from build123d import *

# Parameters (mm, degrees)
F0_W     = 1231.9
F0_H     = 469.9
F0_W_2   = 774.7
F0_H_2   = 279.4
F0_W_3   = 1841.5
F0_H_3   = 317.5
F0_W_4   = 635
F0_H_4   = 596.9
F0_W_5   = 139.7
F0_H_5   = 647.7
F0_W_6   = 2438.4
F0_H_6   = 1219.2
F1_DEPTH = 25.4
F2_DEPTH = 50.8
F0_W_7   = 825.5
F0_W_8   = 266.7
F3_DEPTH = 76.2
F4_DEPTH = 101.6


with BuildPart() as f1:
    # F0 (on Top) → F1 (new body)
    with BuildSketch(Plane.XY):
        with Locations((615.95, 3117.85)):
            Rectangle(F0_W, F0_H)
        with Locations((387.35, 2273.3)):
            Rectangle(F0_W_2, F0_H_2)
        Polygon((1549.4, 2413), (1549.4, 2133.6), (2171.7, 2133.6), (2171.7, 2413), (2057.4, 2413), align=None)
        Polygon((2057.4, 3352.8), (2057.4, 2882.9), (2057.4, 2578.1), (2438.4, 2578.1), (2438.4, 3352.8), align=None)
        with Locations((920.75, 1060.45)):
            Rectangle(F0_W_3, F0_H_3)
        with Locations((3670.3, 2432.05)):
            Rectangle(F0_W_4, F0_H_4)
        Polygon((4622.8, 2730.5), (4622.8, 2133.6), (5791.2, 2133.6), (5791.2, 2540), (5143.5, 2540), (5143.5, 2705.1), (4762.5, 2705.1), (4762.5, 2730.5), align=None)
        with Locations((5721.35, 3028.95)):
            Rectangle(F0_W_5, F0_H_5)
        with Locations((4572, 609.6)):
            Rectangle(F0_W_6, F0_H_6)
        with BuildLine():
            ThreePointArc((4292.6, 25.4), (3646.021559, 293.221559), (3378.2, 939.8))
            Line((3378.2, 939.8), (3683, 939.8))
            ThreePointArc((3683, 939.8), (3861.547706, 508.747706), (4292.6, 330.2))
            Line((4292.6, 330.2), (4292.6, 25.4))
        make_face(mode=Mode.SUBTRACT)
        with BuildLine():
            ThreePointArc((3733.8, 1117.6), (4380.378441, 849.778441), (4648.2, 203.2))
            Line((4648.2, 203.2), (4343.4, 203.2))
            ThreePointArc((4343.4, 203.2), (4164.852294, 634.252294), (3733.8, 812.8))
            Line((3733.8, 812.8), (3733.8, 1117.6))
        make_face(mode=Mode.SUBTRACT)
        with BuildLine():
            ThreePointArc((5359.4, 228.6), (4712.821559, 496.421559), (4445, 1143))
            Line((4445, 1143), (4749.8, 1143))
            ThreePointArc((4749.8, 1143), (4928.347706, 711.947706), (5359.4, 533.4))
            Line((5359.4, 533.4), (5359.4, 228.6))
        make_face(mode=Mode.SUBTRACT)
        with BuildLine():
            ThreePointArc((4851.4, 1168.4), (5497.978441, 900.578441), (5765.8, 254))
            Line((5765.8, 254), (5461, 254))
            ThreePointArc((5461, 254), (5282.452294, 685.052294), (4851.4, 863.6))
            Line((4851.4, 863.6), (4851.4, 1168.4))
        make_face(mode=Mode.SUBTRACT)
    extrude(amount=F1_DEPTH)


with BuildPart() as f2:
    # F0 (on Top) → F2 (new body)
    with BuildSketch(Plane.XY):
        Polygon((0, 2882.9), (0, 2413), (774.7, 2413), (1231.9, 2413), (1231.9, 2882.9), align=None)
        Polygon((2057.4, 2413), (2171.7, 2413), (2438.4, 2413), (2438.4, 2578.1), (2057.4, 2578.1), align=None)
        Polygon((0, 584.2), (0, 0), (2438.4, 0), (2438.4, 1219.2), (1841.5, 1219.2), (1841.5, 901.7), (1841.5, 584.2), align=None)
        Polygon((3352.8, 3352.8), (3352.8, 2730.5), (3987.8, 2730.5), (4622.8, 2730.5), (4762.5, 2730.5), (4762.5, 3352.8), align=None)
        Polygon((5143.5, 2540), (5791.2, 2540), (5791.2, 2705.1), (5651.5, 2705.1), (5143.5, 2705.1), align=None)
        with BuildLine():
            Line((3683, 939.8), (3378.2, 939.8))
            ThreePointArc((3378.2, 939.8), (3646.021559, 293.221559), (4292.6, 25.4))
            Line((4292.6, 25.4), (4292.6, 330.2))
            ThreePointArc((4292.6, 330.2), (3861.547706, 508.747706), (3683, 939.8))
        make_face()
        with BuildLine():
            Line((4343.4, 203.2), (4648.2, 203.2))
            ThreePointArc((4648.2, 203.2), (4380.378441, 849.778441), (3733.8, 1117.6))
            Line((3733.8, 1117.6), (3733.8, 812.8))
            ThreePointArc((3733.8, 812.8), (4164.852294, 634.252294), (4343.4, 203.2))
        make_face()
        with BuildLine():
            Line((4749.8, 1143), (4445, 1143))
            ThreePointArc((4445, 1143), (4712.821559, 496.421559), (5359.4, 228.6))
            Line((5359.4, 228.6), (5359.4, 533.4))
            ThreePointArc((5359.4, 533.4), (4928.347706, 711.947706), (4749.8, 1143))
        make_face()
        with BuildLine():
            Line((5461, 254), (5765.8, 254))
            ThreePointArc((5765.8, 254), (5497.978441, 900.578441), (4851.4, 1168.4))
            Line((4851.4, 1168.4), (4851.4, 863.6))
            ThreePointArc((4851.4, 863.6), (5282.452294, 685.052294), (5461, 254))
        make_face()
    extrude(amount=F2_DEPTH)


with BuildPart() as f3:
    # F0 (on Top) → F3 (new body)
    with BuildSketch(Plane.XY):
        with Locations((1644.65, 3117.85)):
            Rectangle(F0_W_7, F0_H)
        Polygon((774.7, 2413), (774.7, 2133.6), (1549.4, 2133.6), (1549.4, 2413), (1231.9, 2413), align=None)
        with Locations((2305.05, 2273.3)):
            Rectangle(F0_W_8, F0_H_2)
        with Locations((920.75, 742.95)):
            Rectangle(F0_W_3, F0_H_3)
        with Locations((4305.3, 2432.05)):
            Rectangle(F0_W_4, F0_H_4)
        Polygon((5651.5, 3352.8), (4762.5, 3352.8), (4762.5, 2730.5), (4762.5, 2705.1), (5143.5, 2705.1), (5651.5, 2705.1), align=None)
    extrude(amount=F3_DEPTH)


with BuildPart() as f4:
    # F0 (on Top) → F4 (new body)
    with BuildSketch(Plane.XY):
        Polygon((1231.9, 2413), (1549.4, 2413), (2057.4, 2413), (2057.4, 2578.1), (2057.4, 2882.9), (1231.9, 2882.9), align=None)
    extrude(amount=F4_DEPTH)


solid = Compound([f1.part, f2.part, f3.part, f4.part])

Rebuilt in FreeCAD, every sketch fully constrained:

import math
import FreeCAD as App
import Part
import Sketcher
Q = App.Units.Quantity

doc = App.newDocument("Part")
params = doc.addObject("Spreadsheet::Sheet", "Params")
for row, (alias, value) in enumerate([
    ("sketch1_radius", "36 in"),
    ("sketch1_radius2", "24 in"),
    ("sketch1_width", "15 in"),
    ("sketch1_width2", "25 in"),
    ("sketch1_width3", "46 in"),
    ("pad1_length", "1 in"),
    ("sketch2_radius", "36 in"),
    ("sketch2_radius2", "24 in"),
    ("sketch2_width", "15 in"),
    ("sketch2_width2", "96 in"),
    ("sketch2_height", "23 in"),
    ("pad2_length", "2 in"),
    ("sketch3_width", "25 in"),
    ("sketch3_width2", "35 in"),
    ("sketch3_height", "11 in"),
    ("sketch3_width3", "32.5 in"),
    ("sketch3_width4", "30.5 in"),
    ("pad3_length", "3 in"),
    ("sketch4_width", "32.5 in"),
    ("sketch4_height", "18.5 in"),
    ("pad4_length", "4 in"),
], start=1):
    params.set(f"A{row}", alias)
    params.set(f"B{row}", "=" + value)
    params.setAlias(f"B{row}", alias)

body = doc.addObject("PartDesign::Body", "Body")
body.AllowCompound = True

# Sketch on XY plane
sketch1 = doc.addObject("Sketcher::SketchObject", "Sketch")
body.addObject(sketch1)
sketch1.AttachmentSupport = (doc.XY_Plane, [""])
sketch1.MapMode = "FlatFace"
sketch1.addGeometry(Part.LineSegment(App.Vector(0, 3353, 0), App.Vector(0, 2883, 0)), False)
sketch1.addGeometry(Part.LineSegment(App.Vector(0, 2883, 0), App.Vector(1232, 2883, 0)), False)
sketch1.addGeometry(Part.LineSegment(App.Vector(1232, 2883, 0), App.Vector(1232, 3353, 0)), False)
sketch1.addGeometry(Part.LineSegment(App.Vector(1232, 3353, 0), App.Vector(0, 3353, 0)), False)
sketch1.addGeometry(Part.LineSegment(App.Vector(0, 2413, 0), App.Vector(0, 2134, 0)), False)
sketch1.addGeometry(Part.LineSegment(App.Vector(0, 2134, 0), App.Vector(775, 2134, 0)), False)
sketch1.addGeometry(Part.LineSegment(App.Vector(775, 2134, 0), App.Vector(775, 2413, 0)), False)
sketch1.addGeometry(Part.LineSegment(App.Vector(775, 2413, 0), App.Vector(0, 2413, 0)), False)
sketch1.addGeometry(Part.LineSegment(App.Vector(1549, 2413, 0), App.Vector(1549, 2134, 0)), False)
sketch1.addGeometry(Part.LineSegment(App.Vector(1549, 2134, 0), App.Vector(2172, 2134, 0)), False)
sketch1.addGeometry(Part.LineSegment(App.Vector(2172, 2134, 0), App.Vector(2172, 2413, 0)), False)
sketch1.addGeometry(Part.LineSegment(App.Vector(2172, 2413, 0), App.Vector(1549, 2413, 0)), False)
sketch1.addGeometry(Part.LineSegment(App.Vector(2057, 3353, 0), App.Vector(2057, 2578, 0)), False)
sketch1.addGeometry(Part.LineSegment(App.Vector(2057, 2578, 0), App.Vector(2438, 2578, 0)), False)
sketch1.addGeometry(Part.LineSegment(App.Vector(2438, 2578, 0), App.Vector(2438, 3353, 0)), False)
sketch1.addGeometry(Part.LineSegment(App.Vector(2438, 3353, 0), App.Vector(2057, 3353, 0)), False)
sketch1.addGeometry(Part.LineSegment(App.Vector(0, 1219, 0), App.Vector(0, 902, 0)), False)
sketch1.addGeometry(Part.LineSegment(App.Vector(0, 902, 0), App.Vector(1842, 902, 0)), False)
sketch1.addGeometry(Part.LineSegment(App.Vector(1842, 902, 0), App.Vector(1842, 1219, 0)), False)
sketch1.addGeometry(Part.LineSegment(App.Vector(1842, 1219, 0), App.Vector(0, 1219, 0)), False)
sketch1.addGeometry(Part.LineSegment(App.Vector(3353, 2730, 0), App.Vector(3353, 2134, 0)), False)
sketch1.addGeometry(Part.LineSegment(App.Vector(3353, 2134, 0), App.Vector(3988, 2134, 0)), False)
sketch1.addGeometry(Part.LineSegment(App.Vector(3988, 2134, 0), App.Vector(3988, 2730, 0)), False)
sketch1.addGeometry(Part.LineSegment(App.Vector(3988, 2730, 0), App.Vector(3353, 2730, 0)), False)
sketch1.addGeometry(Part.LineSegment(App.Vector(4623, 2730, 0), App.Vector(4623, 2134, 0)), False)
sketch1.addGeometry(Part.LineSegment(App.Vector(4623, 2134, 0), App.Vector(5791, 2134, 0)), False)
sketch1.addGeometry(Part.LineSegment(App.Vector(5791, 2134, 0), App.Vector(5791, 2540, 0)), False)
sketch1.addGeometry(Part.LineSegment(App.Vector(5791, 2540, 0), App.Vector(5144, 2540, 0)), False)
sketch1.addGeometry(Part.LineSegment(App.Vector(5144, 2540, 0), App.Vector(5144, 2705, 0)), False)
sketch1.addGeometry(Part.LineSegment(App.Vector(5144, 2705, 0), App.Vector(4762, 2705, 0)), False)
sketch1.addGeometry(Part.LineSegment(App.Vector(4762, 2705, 0), App.Vector(4762, 2730, 0)), False)
sketch1.addGeometry(Part.LineSegment(App.Vector(4762, 2730, 0), App.Vector(4623, 2730, 0)), False)
sketch1.addGeometry(Part.LineSegment(App.Vector(5652, 3353, 0), App.Vector(5652, 2705, 0)), False)
sketch1.addGeometry(Part.LineSegment(App.Vector(5652, 2705, 0), App.Vector(5791, 2705, 0)), False)
sketch1.addGeometry(Part.LineSegment(App.Vector(5791, 2705, 0), App.Vector(5791, 3353, 0)), False)
sketch1.addGeometry(Part.LineSegment(App.Vector(5791, 3353, 0), App.Vector(5652, 3353, 0)), False)
sketch1.addGeometry(Part.LineSegment(App.Vector(3353, 1219, 0), App.Vector(3353, 0, 0)), False)
sketch1.addGeometry(Part.LineSegment(App.Vector(3353, 0, 0), App.Vector(5791, 0, 0)), False)
sketch1.addGeometry(Part.LineSegment(App.Vector(5791, 0, 0), App.Vector(5791, 1219, 0)), False)
sketch1.addGeometry(Part.LineSegment(App.Vector(5791, 1219, 0), App.Vector(3353, 1219, 0)), False)
sketch1.addGeometry(Part.LineSegment(App.Vector(4293, 330, 0), App.Vector(4293, 25, 0)), False)
sketch1.addGeometry(Part.ArcOfCircle(Part.Circle(App.Vector(4293, 940, 0), App.Vector(0, 0, 1), 914), math.radians(180), math.radians(270)), False)
sketch1.addGeometry(Part.LineSegment(App.Vector(3378, 940, 0), App.Vector(3683, 940, 0)), False)
sketch1.addGeometry(Part.ArcOfCircle(Part.Circle(App.Vector(4293, 940, 0), App.Vector(0, 0, 1), 610), math.radians(180), math.radians(270)), False)
sketch1.addGeometry(Part.LineSegment(App.Vector(3734, 813, 0), App.Vector(3734, 1118, 0)), False)
sketch1.addGeometry(Part.ArcOfCircle(Part.Circle(App.Vector(3734, 203, 0), App.Vector(0, 0, 1), 914), math.radians(0), math.radians(90)), False)
sketch1.addGeometry(Part.LineSegment(App.Vector(4648, 203, 0), App.Vector(4343, 203, 0)), False)
sketch1.addGeometry(Part.ArcOfCircle(Part.Circle(App.Vector(3734, 203, 0), App.Vector(0, 0, 1), 610), math.radians(0), math.radians(90)), False)
sketch1.addGeometry(Part.LineSegment(App.Vector(5359, 533, 0), App.Vector(5359, 229, 0)), False)
sketch1.addGeometry(Part.ArcOfCircle(Part.Circle(App.Vector(5359, 1143, 0), App.Vector(0, 0, 1), 914), math.radians(180), math.radians(270)), False)
sketch1.addGeometry(Part.LineSegment(App.Vector(4445, 1143, 0), App.Vector(4750, 1143, 0)), False)
sketch1.addGeometry(Part.ArcOfCircle(Part.Circle(App.Vector(5359, 1143, 0), App.Vector(0, 0, 1), 610), math.radians(180), math.radians(270)), False)
sketch1.addGeometry(Part.LineSegment(App.Vector(4851, 864, 0), App.Vector(4851, 1168, 0)), False)
sketch1.addGeometry(Part.ArcOfCircle(Part.Circle(App.Vector(4851, 254, 0), App.Vector(0, 0, 1), 914), math.radians(0), math.radians(90)), False)
sketch1.addGeometry(Part.LineSegment(App.Vector(5766, 254, 0), App.Vector(5461, 254, 0)), False)
sketch1.addGeometry(Part.ArcOfCircle(Part.Circle(App.Vector(4851, 254, 0), App.Vector(0, 0, 1), 610), math.radians(0), math.radians(90)), False)
sketch1.addConstraint(Sketcher.Constraint("Coincident", 0, 2, 1, 1))
sketch1.addConstraint(Sketcher.Constraint("Coincident", 1, 2, 2, 1))
sketch1.addConstraint(Sketcher.Constraint("Coincident", 2, 2, 3, 1))
sketch1.addConstraint(Sketcher.Constraint("Coincident", 3, 2, 0, 1))
sketch1.addConstraint(Sketcher.Constraint("Coincident", 4, 2, 5, 1))
sketch1.addConstraint(Sketcher.Constraint("Coincident", 5, 2, 6, 1))
sketch1.addConstraint(Sketcher.Constraint("Coincident", 6, 2, 7, 1))
sketch1.addConstraint(Sketcher.Constraint("Coincident", 7, 2, 4, 1))
sketch1.addConstraint(Sketcher.Constraint("Coincident", 8, 2, 9, 1))
sketch1.addConstraint(Sketcher.Constraint("Coincident", 9, 2, 10, 1))
sketch1.addConstraint(Sketcher.Constraint("Coincident", 10, 2, 11, 1))
sketch1.addConstraint(Sketcher.Constraint("Coincident", 11, 2, 8, 1))
sketch1.addConstraint(Sketcher.Constraint("Coincident", 12, 2, 13, 1))
sketch1.addConstraint(Sketcher.Constraint("Coincident", 13, 2, 14, 1))
sketch1.addConstraint(Sketcher.Constraint("Coincident", 14, 2, 15, 1))
sketch1.addConstraint(Sketcher.Constraint("Coincident", 15, 2, 12, 1))
sketch1.addConstraint(Sketcher.Constraint("Coincident", 16, 2, 17, 1))
sketch1.addConstraint(Sketcher.Constraint("Coincident", 17, 2, 18, 1))
sketch1.addConstraint(Sketcher.Constraint("Coincident", 18, 2, 19, 1))
sketch1.addConstraint(Sketcher.Constraint("Coincident", 19, 2, 16, 1))
sketch1.addConstraint(Sketcher.Constraint("Coincident", 20, 2, 21, 1))
sketch1.addConstraint(Sketcher.Constraint("Coincident", 21, 2, 22, 1))
sketch1.addConstraint(Sketcher.Constraint("Coincident", 22, 2, 23, 1))
sketch1.addConstraint(Sketcher.Constraint("Coincident", 23, 2, 20, 1))
sketch1.addConstraint(Sketcher.Constraint("Coincident", 24, 2, 25, 1))
sketch1.addConstraint(Sketcher.Constraint("Coincident", 25, 2, 26, 1))
sketch1.addConstraint(Sketcher.Constraint("Coincident", 26, 2, 27, 1))
sketch1.addConstraint(Sketcher.Constraint("Coincident", 27, 2, 28, 1))
sketch1.addConstraint(Sketcher.Constraint("Coincident", 28, 2, 29, 1))
sketch1.addConstraint(Sketcher.Constraint("Coincident", 29, 2, 30, 1))
sketch1.addConstraint(Sketcher.Constraint("Coincident", 30, 2, 31, 1))
sketch1.addConstraint(Sketcher.Constraint("Coincident", 31, 2, 24, 1))
sketch1.addConstraint(Sketcher.Constraint("Coincident", 32, 2, 33, 1))
sketch1.addConstraint(Sketcher.Constraint("Coincident", 33, 2, 34, 1))
sketch1.addConstraint(Sketcher.Constraint("Coincident", 34, 2, 35, 1))
sketch1.addConstraint(Sketcher.Constraint("Coincident", 35, 2, 32, 1))
sketch1.addConstraint(Sketcher.Constraint("Coincident", 36, 2, 37, 1))
sketch1.addConstraint(Sketcher.Constraint("Coincident", 37, 2, 38, 1))
sketch1.addConstraint(Sketcher.Constraint("Coincident", 38, 2, 39, 1))
sketch1.addConstraint(Sketcher.Constraint("Coincident", 39, 2, 36, 1))
sketch1.addConstraint(Sketcher.Constraint("Coincident", 40, 2, 41, 2))
sketch1.addConstraint(Sketcher.Constraint("Coincident", 41, 1, 42, 1))
sketch1.addConstraint(Sketcher.Constraint("Coincident", 42, 2, 43, 1))
sketch1.addConstraint(Sketcher.Constraint("Coincident", 43, 2, 40, 1))
sketch1.addConstraint(Sketcher.Constraint("Coincident", 44, 2, 45, 2))
sketch1.addConstraint(Sketcher.Constraint("Coincident", 45, 1, 46, 1))
sketch1.addConstraint(Sketcher.Constraint("Coincident", 46, 2, 47, 1))
sketch1.addConstraint(Sketcher.Constraint("Coincident", 47, 2, 44, 1))
sketch1.addConstraint(Sketcher.Constraint("Coincident", 48, 2, 49, 2))
sketch1.addConstraint(Sketcher.Constraint("Coincident", 49, 1, 50, 1))
sketch1.addConstraint(Sketcher.Constraint("Coincident", 50, 2, 51, 1))
sketch1.addConstraint(Sketcher.Constraint("Coincident", 51, 2, 48, 1))
sketch1.addConstraint(Sketcher.Constraint("Coincident", 52, 2, 53, 2))
sketch1.addConstraint(Sketcher.Constraint("Coincident", 53, 1, 54, 1))
sketch1.addConstraint(Sketcher.Constraint("Coincident", 54, 2, 55, 1))
sketch1.addConstraint(Sketcher.Constraint("Coincident", 55, 2, 52, 1))
sketch1.addConstraint(Sketcher.Constraint("Vertical", 0))
sketch1.addConstraint(Sketcher.Constraint("Horizontal", 1))
sketch1.addConstraint(Sketcher.Constraint("Vertical", 2))
sketch1.addConstraint(Sketcher.Constraint("Horizontal", 3))
sketch1.addConstraint(Sketcher.Constraint("Vertical", 4))
sketch1.addConstraint(Sketcher.Constraint("Horizontal", 5))
sketch1.addConstraint(Sketcher.Constraint("Vertical", 6))
sketch1.addConstraint(Sketcher.Constraint("Horizontal", 7))
sketch1.addConstraint(Sketcher.Constraint("Vertical", 8))
sketch1.addConstraint(Sketcher.Constraint("Horizontal", 9))
sketch1.addConstraint(Sketcher.Constraint("Vertical", 10))
sketch1.addConstraint(Sketcher.Constraint("Horizontal", 11))
sketch1.addConstraint(Sketcher.Constraint("Vertical", 12))
sketch1.addConstraint(Sketcher.Constraint("Horizontal", 13))
sketch1.addConstraint(Sketcher.Constraint("Vertical", 14))
sketch1.addConstraint(Sketcher.Constraint("Horizontal", 15))
sketch1.addConstraint(Sketcher.Constraint("Vertical", 16))
sketch1.addConstraint(Sketcher.Constraint("Horizontal", 17))
sketch1.addConstraint(Sketcher.Constraint("Vertical", 18))
sketch1.addConstraint(Sketcher.Constraint("Horizontal", 19))
sketch1.addConstraint(Sketcher.Constraint("Vertical", 20))
sketch1.addConstraint(Sketcher.Constraint("Horizontal", 21))
sketch1.addConstraint(Sketcher.Constraint("Vertical", 22))
sketch1.addConstraint(Sketcher.Constraint("Horizontal", 23))
sketch1.addConstraint(Sketcher.Constraint("Vertical", 24))
sketch1.addConstraint(Sketcher.Constraint("Horizontal", 25))
sketch1.addConstraint(Sketcher.Constraint("Vertical", 26))
sketch1.addConstraint(Sketcher.Constraint("Horizontal", 27))
sketch1.addConstraint(Sketcher.Constraint("Vertical", 28))
sketch1.addConstraint(Sketcher.Constraint("Horizontal", 29))
sketch1.addConstraint(Sketcher.Constraint("Vertical", 30))
sketch1.addConstraint(Sketcher.Constraint("Horizontal", 31))
sketch1.addConstraint(Sketcher.Constraint("Vertical", 32))
sketch1.addConstraint(Sketcher.Constraint("Horizontal", 33))
sketch1.addConstraint(Sketcher.Constraint("Vertical", 34))
sketch1.addConstraint(Sketcher.Constraint("Horizontal", 35))
sketch1.addConstraint(Sketcher.Constraint("Vertical", 36))
sketch1.addConstraint(Sketcher.Constraint("Horizontal", 37))
sketch1.addConstraint(Sketcher.Constraint("Vertical", 38))
sketch1.addConstraint(Sketcher.Constraint("Horizontal", 39))
sketch1.addConstraint(Sketcher.Constraint("Vertical", 40))
sketch1.addConstraint(Sketcher.Constraint("Horizontal", 42))
sketch1.addConstraint(Sketcher.Constraint("Vertical", 44))
sketch1.addConstraint(Sketcher.Constraint("Horizontal", 46))
sketch1.addConstraint(Sketcher.Constraint("Vertical", 48))
sketch1.addConstraint(Sketcher.Constraint("Horizontal", 50))
sketch1.addConstraint(Sketcher.Constraint("Vertical", 52))
sketch1.addConstraint(Sketcher.Constraint("Horizontal", 54))
sketch1.addConstraint(Sketcher.Constraint("Coincident", 43, 3, 41, 3))
sketch1.addConstraint(Sketcher.Constraint("Coincident", 47, 3, 45, 3))
sketch1.addConstraint(Sketcher.Constraint("Coincident", 51, 3, 49, 3))
sketch1.addConstraint(Sketcher.Constraint("Coincident", 55, 3, 53, 3))
sketch1.addConstraint(Sketcher.Constraint("Equal", 41, 45))
sketch1.addConstraint(Sketcher.Constraint("Equal", 43, 47))
sketch1.addConstraint(Sketcher.Constraint("Equal", 45, 49))
sketch1.addConstraint(Sketcher.Constraint("Equal", 47, 51))
sketch1.addConstraint(Sketcher.Constraint("Equal", 49, 53))
sketch1.addConstraint(Sketcher.Constraint("Equal", 51, 55))
sketch1.addConstraint(Sketcher.Constraint("PointOnObject", 0, 2, -2))
sketch1.addConstraint(Sketcher.Constraint("PointOnObject", 4, 2, -2))
sketch1.addConstraint(Sketcher.Constraint("PointOnObject", 16, 2, -2))
sketch1.addConstraint(Sketcher.Constraint("PointOnObject", 36, 2, -1))
sketch1.addConstraint(Sketcher.Constraint("Horizontal", 5, 2, 8, 2))
sketch1.addConstraint(Sketcher.Constraint("Horizontal", 7, 2, 10, 2))
sketch1.addConstraint(Sketcher.Constraint("Horizontal", 3, 2, 14, 2))
sketch1.addConstraint(Sketcher.Constraint("Horizontal", 9, 2, 20, 2))
sketch1.addConstraint(Sketcher.Constraint("Horizontal", 21, 2, 24, 2))
sketch1.addConstraint(Sketcher.Constraint("Horizontal", 23, 2, 30, 2))
sketch1.addConstraint(Sketcher.Constraint("Horizontal", 29, 2, 32, 2))
sketch1.addConstraint(Sketcher.Constraint("Horizontal", 15, 2, 34, 2))
sketch1.addConstraint(Sketcher.Constraint("Horizontal", 19, 2, 38, 2))
sketch1.addConstraint(Sketcher.Constraint("Vertical", 26, 2, 33, 2))
sketch1.addConstraint(Sketcher.Constraint("Vertical", 23, 2, 36, 2))
sketch1.addConstraint(Sketcher.Constraint("Vertical", 34, 2, 37, 2))
sketch1.addConstraint(Sketcher.Constraint("Vertical", 43, 3, 40, 2))
sketch1.addConstraint(Sketcher.Constraint("Vertical", 47, 3, 44, 2))
sketch1.addConstraint(Sketcher.Constraint("Vertical", 51, 3, 48, 2))
sketch1.addConstraint(Sketcher.Constraint("Vertical", 55, 3, 52, 2))
sketch1.addConstraint(Sketcher.Constraint("Equal", 15, 29))
sketch1.addConstraint(Sketcher.Constraint("Equal", 31, 33))
sketch1.addConstraint(Sketcher.Constraint("Equal", 7, 12))
sketch1.addConstraint(Sketcher.Constraint("Equal", 27, 32))
sketch1.addConstraint(Sketcher.Constraint("Radius", 41, Q("36 in")))
sketch1.addConstraint(Sketcher.Constraint("Radius", 43, Q("24 in")))
sketch1.addConstraint(Sketcher.Constraint("DistanceX", 13, 1, 13, 2, Q("15 in")))
sketch1.addConstraint(Sketcher.Constraint("DistanceX", 21, 1, 21, 2, Q("25 in")))
sketch1.addConstraint(Sketcher.Constraint("DistanceX", 25, 1, 25, 2, Q("46 in")))
sketch1.addConstraint(Sketcher.Constraint("DistanceX", 37, 1, 37, 2, Q("96 in")))
sketch1.addConstraint(Sketcher.Constraint("DistanceY", 4, 2, 4, 1, Q("11 in")))
sketch1.addConstraint(Sketcher.Constraint("DistanceY", 26, 1, 26, 2, Q("16 in")))
sketch1.addConstraint(Sketcher.Constraint("DistanceY", 30, 1, 30, 2, Q("1 in")))
sketch1.addConstraint(Sketcher.Constraint("DistanceY", 36, 2, 36, 1, Q("48 in")))
sketch1.addConstraint(Sketcher.Constraint("DistanceX", 1, 1, 1, 2, Q("48.5 in")))
sketch1.addConstraint(Sketcher.Constraint("DistanceX", 5, 1, 5, 2, Q("30.5 in")))
sketch1.addConstraint(Sketcher.Constraint("DistanceX", 9, 1, 9, 2, Q("24.5 in")))
sketch1.addConstraint(Sketcher.Constraint("DistanceX", 17, 1, 17, 2, Q("72.5 in")))
sketch1.addConstraint(Sketcher.Constraint("DistanceX", 27, 2, 27, 1, Q("25.5 in")))
sketch1.addConstraint(Sketcher.Constraint("DistanceY", 0, 2, 0, 1, Q("18.5 in")))
sketch1.addConstraint(Sketcher.Constraint("DistanceY", 16, 2, 16, 1, Q("12.5 in")))
sketch1.addConstraint(Sketcher.Constraint("DistanceY", 20, 2, 20, 1, Q("23.5 in")))
sketch1.addConstraint(Sketcher.Constraint("DistanceX", -1, 1, 41, 3, Q("169 in")))
sketch1.addConstraint(Sketcher.Constraint("DistanceY", -1, 1, 41, 3, Q("37 in")))
sketch1.addConstraint(Sketcher.Constraint("DistanceX", -1, 1, 45, 3, Q("147 in")))
sketch1.addConstraint(Sketcher.Constraint("DistanceY", -1, 1, 45, 3, Q("8 in")))
sketch1.addConstraint(Sketcher.Constraint("DistanceX", -1, 1, 49, 3, Q("211 in")))
sketch1.addConstraint(Sketcher.Constraint("DistanceY", -1, 1, 49, 3, Q("45 in")))
sketch1.addConstraint(Sketcher.Constraint("DistanceX", -1, 1, 53, 3, Q("191 in")))
sketch1.addConstraint(Sketcher.Constraint("DistanceY", -1, 1, 53, 3, Q("10 in")))
sketch1.addConstraint(Sketcher.Constraint("DistanceY", -1, 1, 2, 2, Q("132 in")))
sketch1.addConstraint(Sketcher.Constraint("DistanceX", -1, 1, 8, 2, Q("61 in")))
sketch1.addConstraint(Sketcher.Constraint("DistanceX", -1, 1, 12, 2, Q("81 in")))
sketch1.addConstraint(Sketcher.Constraint("DistanceX", -1, 1, 20, 2, Q("132 in")))
sketch1.addConstraint(Sketcher.Constraint("DistanceY", -1, 1, 42, 2, Q("37 in")))
sketch1.addConstraint(Sketcher.Constraint("DistanceY", -1, 1, 46, 2, Q("8 in")))
sketch1.addConstraint(Sketcher.Constraint("DistanceY", -1, 1, 50, 2, Q("45 in")))
sketch1.addConstraint(Sketcher.Constraint("DistanceY", -1, 1, 54, 2, Q("10 in")))
sketch1.setExpression("Constraints[138]", "Params.sketch1_radius")
sketch1.setExpression("Constraints[139]", "Params.sketch1_radius2")
sketch1.setExpression("Constraints[140]", "Params.sketch1_width")
sketch1.setExpression("Constraints[141]", "Params.sketch1_width2")
sketch1.setExpression("Constraints[142]", "Params.sketch1_width3")
pad1 = doc.addObject("PartDesign::Pad", "Pad")
body.addObject(pad1)
pad1.Profile = sketch1
pad1.setExpression("Length", "Params.pad1_length")
body2 = doc.addObject("PartDesign::Body", "Body001")
body2.AllowCompound = True

# Sketch on XY plane
sketch2 = doc.addObject("Sketcher::SketchObject", "Sketch001")
body2.addObject(sketch2)
sketch2.AttachmentSupport = (doc.getObject("XY_Plane001"), [""])
sketch2.MapMode = "FlatFace"
sketch2.addGeometry(Part.LineSegment(App.Vector(0, 2883, 0), App.Vector(0, 2413, 0)), False)
sketch2.addGeometry(Part.LineSegment(App.Vector(0, 2413, 0), App.Vector(1232, 2413, 0)), False)
sketch2.addGeometry(Part.LineSegment(App.Vector(1232, 2413, 0), App.Vector(1232, 2883, 0)), False)
sketch2.addGeometry(Part.LineSegment(App.Vector(1232, 2883, 0), App.Vector(0, 2883, 0)), False)
sketch2.addGeometry(Part.LineSegment(App.Vector(2057, 2413, 0), App.Vector(2438, 2413, 0)), False)
sketch2.addGeometry(Part.LineSegment(App.Vector(2438, 2413, 0), App.Vector(2438, 2578, 0)), False)
sketch2.addGeometry(Part.LineSegment(App.Vector(2438, 2578, 0), App.Vector(2057, 2578, 0)), False)
sketch2.addGeometry(Part.LineSegment(App.Vector(2057, 2578, 0), App.Vector(2057, 2413, 0)), False)
sketch2.addGeometry(Part.LineSegment(App.Vector(0, 584, 0), App.Vector(0, 0, 0)), False)
sketch2.addGeometry(Part.LineSegment(App.Vector(0, 0, 0), App.Vector(2438, 0, 0)), False)
sketch2.addGeometry(Part.LineSegment(App.Vector(2438, 0, 0), App.Vector(2438, 1219, 0)), False)
sketch2.addGeometry(Part.LineSegment(App.Vector(2438, 1219, 0), App.Vector(1842, 1219, 0)), False)
sketch2.addGeometry(Part.LineSegment(App.Vector(1842, 1219, 0), App.Vector(1842, 584, 0)), False)
sketch2.addGeometry(Part.LineSegment(App.Vector(1842, 584, 0), App.Vector(0, 584, 0)), False)
sketch2.addGeometry(Part.LineSegment(App.Vector(3353, 3353, 0), App.Vector(3353, 2730, 0)), False)
sketch2.addGeometry(Part.LineSegment(App.Vector(3353, 2730, 0), App.Vector(4762, 2730, 0)), False)
sketch2.addGeometry(Part.LineSegment(App.Vector(4762, 2730, 0), App.Vector(4762, 3353, 0)), False)
sketch2.addGeometry(Part.LineSegment(App.Vector(4762, 3353, 0), App.Vector(3353, 3353, 0)), False)
sketch2.addGeometry(Part.LineSegment(App.Vector(5144, 2540, 0), App.Vector(5791, 2540, 0)), False)
sketch2.addGeometry(Part.LineSegment(App.Vector(5791, 2540, 0), App.Vector(5791, 2705, 0)), False)
sketch2.addGeometry(Part.LineSegment(App.Vector(5791, 2705, 0), App.Vector(5144, 2705, 0)), False)
sketch2.addGeometry(Part.LineSegment(App.Vector(5144, 2705, 0), App.Vector(5144, 2540, 0)), False)
sketch2.addGeometry(Part.LineSegment(App.Vector(3683, 940, 0), App.Vector(3378, 940, 0)), False)
sketch2.addGeometry(Part.ArcOfCircle(Part.Circle(App.Vector(4293, 940, 0), App.Vector(0, 0, 1), 914), math.radians(180), math.radians(270)), False)
sketch2.addGeometry(Part.LineSegment(App.Vector(4293, 25, 0), App.Vector(4293, 330, 0)), False)
sketch2.addGeometry(Part.ArcOfCircle(Part.Circle(App.Vector(4293, 940, 0), App.Vector(0, 0, 1), 610), math.radians(180), math.radians(270)), False)
sketch2.addGeometry(Part.LineSegment(App.Vector(4343, 203, 0), App.Vector(4648, 203, 0)), False)
sketch2.addGeometry(Part.ArcOfCircle(Part.Circle(App.Vector(3734, 203, 0), App.Vector(0, 0, 1), 914), math.radians(0), math.radians(90)), False)
sketch2.addGeometry(Part.LineSegment(App.Vector(3734, 1118, 0), App.Vector(3734, 813, 0)), False)
sketch2.addGeometry(Part.ArcOfCircle(Part.Circle(App.Vector(3734, 203, 0), App.Vector(0, 0, 1), 610), math.radians(0), math.radians(90)), False)
sketch2.addGeometry(Part.LineSegment(App.Vector(4750, 1143, 0), App.Vector(4445, 1143, 0)), False)
sketch2.addGeometry(Part.ArcOfCircle(Part.Circle(App.Vector(5359, 1143, 0), App.Vector(0, 0, 1), 914), math.radians(180), math.radians(270)), False)
sketch2.addGeometry(Part.LineSegment(App.Vector(5359, 229, 0), App.Vector(5359, 533, 0)), False)
sketch2.addGeometry(Part.ArcOfCircle(Part.Circle(App.Vector(5359, 1143, 0), App.Vector(0, 0, 1), 610), math.radians(180), math.radians(270)), False)
sketch2.addGeometry(Part.LineSegment(App.Vector(5461, 254, 0), App.Vector(5766, 254, 0)), False)
sketch2.addGeometry(Part.ArcOfCircle(Part.Circle(App.Vector(4851, 254, 0), App.Vector(0, 0, 1), 914), math.radians(0), math.radians(90)), False)
sketch2.addGeometry(Part.LineSegment(App.Vector(4851, 1168, 0), App.Vector(4851, 864, 0)), False)
sketch2.addGeometry(Part.ArcOfCircle(Part.Circle(App.Vector(4851, 254, 0), App.Vector(0, 0, 1), 610), math.radians(0), math.radians(90)), False)
sketch2.addConstraint(Sketcher.Constraint("Coincident", 0, 2, 1, 1))
sketch2.addConstraint(Sketcher.Constraint("Coincident", 1, 2, 2, 1))
sketch2.addConstraint(Sketcher.Constraint("Coincident", 2, 2, 3, 1))
sketch2.addConstraint(Sketcher.Constraint("Coincident", 3, 2, 0, 1))
sketch2.addConstraint(Sketcher.Constraint("Coincident", 4, 2, 5, 1))
sketch2.addConstraint(Sketcher.Constraint("Coincident", 5, 2, 6, 1))
sketch2.addConstraint(Sketcher.Constraint("Coincident", 6, 2, 7, 1))
sketch2.addConstraint(Sketcher.Constraint("Coincident", 7, 2, 4, 1))
sketch2.addConstraint(Sketcher.Constraint("Coincident", 8, 2, 9, 1))
sketch2.addConstraint(Sketcher.Constraint("Coincident", 9, 2, 10, 1))
sketch2.addConstraint(Sketcher.Constraint("Coincident", 10, 2, 11, 1))
sketch2.addConstraint(Sketcher.Constraint("Coincident", 11, 2, 12, 1))
sketch2.addConstraint(Sketcher.Constraint("Coincident", 12, 2, 13, 1))
sketch2.addConstraint(Sketcher.Constraint("Coincident", 13, 2, 8, 1))
sketch2.addConstraint(Sketcher.Constraint("Coincident", 14, 2, 15, 1))
sketch2.addConstraint(Sketcher.Constraint("Coincident", 15, 2, 16, 1))
sketch2.addConstraint(Sketcher.Constraint("Coincident", 16, 2, 17, 1))
sketch2.addConstraint(Sketcher.Constraint("Coincident", 17, 2, 14, 1))
sketch2.addConstraint(Sketcher.Constraint("Coincident", 18, 2, 19, 1))
sketch2.addConstraint(Sketcher.Constraint("Coincident", 19, 2, 20, 1))
sketch2.addConstraint(Sketcher.Constraint("Coincident", 20, 2, 21, 1))
sketch2.addConstraint(Sketcher.Constraint("Coincident", 21, 2, 18, 1))
sketch2.addConstraint(Sketcher.Constraint("Coincident", 22, 2, 23, 1))
sketch2.addConstraint(Sketcher.Constraint("Coincident", 23, 2, 24, 1))
sketch2.addConstraint(Sketcher.Constraint("Coincident", 24, 2, 25, 2))
sketch2.addConstraint(Sketcher.Constraint("Coincident", 25, 1, 22, 1))
sketch2.addConstraint(Sketcher.Constraint("Coincident", 26, 2, 27, 1))
sketch2.addConstraint(Sketcher.Constraint("Coincident", 27, 2, 28, 1))
sketch2.addConstraint(Sketcher.Constraint("Coincident", 28, 2, 29, 2))
sketch2.addConstraint(Sketcher.Constraint("Coincident", 29, 1, 26, 1))
sketch2.addConstraint(Sketcher.Constraint("Coincident", 30, 2, 31, 1))
sketch2.addConstraint(Sketcher.Constraint("Coincident", 31, 2, 32, 1))
sketch2.addConstraint(Sketcher.Constraint("Coincident", 32, 2, 33, 2))
sketch2.addConstraint(Sketcher.Constraint("Coincident", 33, 1, 30, 1))
sketch2.addConstraint(Sketcher.Constraint("Coincident", 34, 2, 35, 1))
sketch2.addConstraint(Sketcher.Constraint("Coincident", 35, 2, 36, 1))
sketch2.addConstraint(Sketcher.Constraint("Coincident", 36, 2, 37, 2))
sketch2.addConstraint(Sketcher.Constraint("Coincident", 37, 1, 34, 1))
sketch2.addConstraint(Sketcher.Constraint("Vertical", 0))
sketch2.addConstraint(Sketcher.Constraint("Horizontal", 1))
sketch2.addConstraint(Sketcher.Constraint("Vertical", 2))
sketch2.addConstraint(Sketcher.Constraint("Horizontal", 3))
sketch2.addConstraint(Sketcher.Constraint("Horizontal", 4))
sketch2.addConstraint(Sketcher.Constraint("Vertical", 5))
sketch2.addConstraint(Sketcher.Constraint("Horizontal", 6))
sketch2.addConstraint(Sketcher.Constraint("Vertical", 7))
sketch2.addConstraint(Sketcher.Constraint("Vertical", 8))
sketch2.addConstraint(Sketcher.Constraint("Horizontal", 9))
sketch2.addConstraint(Sketcher.Constraint("Vertical", 10))
sketch2.addConstraint(Sketcher.Constraint("Horizontal", 11))
sketch2.addConstraint(Sketcher.Constraint("Vertical", 12))
sketch2.addConstraint(Sketcher.Constraint("Horizontal", 13))
sketch2.addConstraint(Sketcher.Constraint("Vertical", 14))
sketch2.addConstraint(Sketcher.Constraint("Horizontal", 15))
sketch2.addConstraint(Sketcher.Constraint("Vertical", 16))
sketch2.addConstraint(Sketcher.Constraint("Horizontal", 17))
sketch2.addConstraint(Sketcher.Constraint("Horizontal", 18))
sketch2.addConstraint(Sketcher.Constraint("Vertical", 19))
sketch2.addConstraint(Sketcher.Constraint("Horizontal", 20))
sketch2.addConstraint(Sketcher.Constraint("Vertical", 21))
sketch2.addConstraint(Sketcher.Constraint("Horizontal", 22))
sketch2.addConstraint(Sketcher.Constraint("Vertical", 24))
sketch2.addConstraint(Sketcher.Constraint("Horizontal", 26))
sketch2.addConstraint(Sketcher.Constraint("Vertical", 28))
sketch2.addConstraint(Sketcher.Constraint("Horizontal", 30))
sketch2.addConstraint(Sketcher.Constraint("Vertical", 32))
sketch2.addConstraint(Sketcher.Constraint("Horizontal", 34))
sketch2.addConstraint(Sketcher.Constraint("Vertical", 36))
sketch2.addConstraint(Sketcher.Constraint("Coincident", 8, 2, -1, 1))
sketch2.addConstraint(Sketcher.Constraint("Coincident", 25, 3, 23, 3))
sketch2.addConstraint(Sketcher.Constraint("Coincident", 29, 3, 27, 3))
sketch2.addConstraint(Sketcher.Constraint("Coincident", 33, 3, 31, 3))
sketch2.addConstraint(Sketcher.Constraint("Coincident", 37, 3, 35, 3))
sketch2.addConstraint(Sketcher.Constraint("Equal", 23, 27))
sketch2.addConstraint(Sketcher.Constraint("Equal", 25, 29))
sketch2.addConstraint(Sketcher.Constraint("Equal", 27, 31))
sketch2.addConstraint(Sketcher.Constraint("Equal", 29, 33))
sketch2.addConstraint(Sketcher.Constraint("Equal", 31, 35))
sketch2.addConstraint(Sketcher.Constraint("Equal", 33, 37))
sketch2.addConstraint(Sketcher.Constraint("PointOnObject", 0, 2, -2))
sketch2.addConstraint(Sketcher.Constraint("Horizontal", 1, 2, 4, 2))
sketch2.addConstraint(Sketcher.Constraint("Horizontal", 25, 3, 22, 2))
sketch2.addConstraint(Sketcher.Constraint("Horizontal", 29, 3, 26, 2))
sketch2.addConstraint(Sketcher.Constraint("Horizontal", 33, 3, 30, 2))
sketch2.addConstraint(Sketcher.Constraint("Horizontal", 37, 3, 34, 2))
sketch2.addConstraint(Sketcher.Constraint("Vertical", 5, 2, 9, 2))
sketch2.addConstraint(Sketcher.Constraint("Equal", 7, 19))
sketch2.addConstraint(Sketcher.Constraint("Radius", 23, Q("36 in")))
sketch2.addConstraint(Sketcher.Constraint("Radius", 25, Q("24 in")))
sketch2.addConstraint(Sketcher.Constraint("DistanceX", 4, 1, 4, 2, Q("15 in")))
sketch2.addConstraint(Sketcher.Constraint("DistanceX", 9, 1, 9, 2, Q("96 in")))
sketch2.addConstraint(Sketcher.Constraint("DistanceY", 8, 2, 8, 1, Q("23 in")))
sketch2.addConstraint(Sketcher.Constraint("DistanceY", 10, 1, 10, 2, Q("48 in")))
sketch2.addConstraint(Sketcher.Constraint("DistanceX", 1, 1, 1, 2, Q("48.5 in")))
sketch2.addConstraint(Sketcher.Constraint("DistanceX", 11, 2, 11, 1, Q("23.5 in")))
sketch2.addConstraint(Sketcher.Constraint("DistanceX", 15, 1, 15, 2, Q("55.5 in")))
sketch2.addConstraint(Sketcher.Constraint("DistanceX", 18, 1, 18, 2, Q("25.5 in")))
sketch2.addConstraint(Sketcher.Constraint("DistanceY", 0, 2, 0, 1, Q("18.5 in")))
sketch2.addConstraint(Sketcher.Constraint("DistanceY", 5, 1, 5, 2, Q("6.5 in")))
sketch2.addConstraint(Sketcher.Constraint("DistanceY", 14, 2, 14, 1, Q("24.5 in")))
sketch2.addConstraint(Sketcher.Constraint("DistanceX", -1, 1, 23, 3, Q("169 in")))
sketch2.addConstraint(Sketcher.Constraint("DistanceY", -1, 1, 23, 3, Q("37 in")))
sketch2.addConstraint(Sketcher.Constraint("DistanceX", -1, 1, 27, 3, Q("147 in")))
sketch2.addConstraint(Sketcher.Constraint("DistanceY", -1, 1, 27, 3, Q("8 in")))
sketch2.addConstraint(Sketcher.Constraint("DistanceX", -1, 1, 31, 3, Q("211 in")))
sketch2.addConstraint(Sketcher.Constraint("DistanceY", -1, 1, 31, 3, Q("45 in")))
sketch2.addConstraint(Sketcher.Constraint("DistanceX", -1, 1, 35, 3, Q("191 in")))
sketch2.addConstraint(Sketcher.Constraint("DistanceY", -1, 1, 35, 3, Q("10 in")))
sketch2.addConstraint(Sketcher.Constraint("DistanceY", -1, 1, 0, 2, Q("95 in")))
sketch2.addConstraint(Sketcher.Constraint("DistanceX", -1, 1, 14, 2, Q("132 in")))
sketch2.addConstraint(Sketcher.Constraint("DistanceY", -1, 1, 16, 2, Q("132 in")))
sketch2.addConstraint(Sketcher.Constraint("DistanceX", -1, 1, 18, 2, Q("228 in")))
sketch2.addConstraint(Sketcher.Constraint("DistanceY", -1, 1, 18, 2, Q("100 in")))
sketch2.addConstraint(Sketcher.Constraint("DistanceX", -1, 1, 24, 2, Q("169 in")))
sketch2.addConstraint(Sketcher.Constraint("DistanceX", -1, 1, 28, 2, Q("147 in")))
sketch2.addConstraint(Sketcher.Constraint("DistanceX", -1, 1, 32, 2, Q("211 in")))
sketch2.addConstraint(Sketcher.Constraint("DistanceX", -1, 1, 36, 2, Q("191 in")))
sketch2.setExpression("Constraints[87]", "Params.sketch2_radius")
sketch2.setExpression("Constraints[88]", "Params.sketch2_radius2")
sketch2.setExpression("Constraints[89]", "Params.sketch2_width")
sketch2.setExpression("Constraints[90]", "Params.sketch2_width2")
sketch2.setExpression("Constraints[91]", "Params.sketch2_height")
pad2 = doc.addObject("PartDesign::Pad", "Pad001")
body2.addObject(pad2)
pad2.Profile = sketch2
pad2.setExpression("Length", "Params.pad2_length")
body3 = doc.addObject("PartDesign::Body", "Body002")
body3.AllowCompound = True

# Sketch on XY plane
sketch3 = doc.addObject("Sketcher::SketchObject", "Sketch002")
body3.addObject(sketch3)
sketch3.AttachmentSupport = (doc.getObject("XY_Plane002"), [""])
sketch3.MapMode = "FlatFace"
sketch3.addGeometry(Part.LineSegment(App.Vector(1232, 3353, 0), App.Vector(1232, 2883, 0)), False)
sketch3.addGeometry(Part.LineSegment(App.Vector(1232, 2883, 0), App.Vector(2057, 2883, 0)), False)
sketch3.addGeometry(Part.LineSegment(App.Vector(2057, 2883, 0), App.Vector(2057, 3353, 0)), False)
sketch3.addGeometry(Part.LineSegment(App.Vector(2057, 3353, 0), App.Vector(1232, 3353, 0)), False)
sketch3.addGeometry(Part.LineSegment(App.Vector(775, 2413, 0), App.Vector(775, 2134, 0)), False)
sketch3.addGeometry(Part.LineSegment(App.Vector(775, 2134, 0), App.Vector(1549, 2134, 0)), False)
sketch3.addGeometry(Part.LineSegment(App.Vector(1549, 2134, 0), App.Vector(1549, 2413, 0)), False)
sketch3.addGeometry(Part.LineSegment(App.Vector(1549, 2413, 0), App.Vector(775, 2413, 0)), False)
sketch3.addGeometry(Part.LineSegment(App.Vector(2172, 2413, 0), App.Vector(2172, 2134, 0)), False)
sketch3.addGeometry(Part.LineSegment(App.Vector(2172, 2134, 0), App.Vector(2438, 2134, 0)), False)
sketch3.addGeometry(Part.LineSegment(App.Vector(2438, 2134, 0), App.Vector(2438, 2413, 0)), False)
sketch3.addGeometry(Part.LineSegment(App.Vector(2438, 2413, 0), App.Vector(2172, 2413, 0)), False)
sketch3.addGeometry(Part.LineSegment(App.Vector(0, 902, 0), App.Vector(0, 584, 0)), False)
sketch3.addGeometry(Part.LineSegment(App.Vector(0, 584, 0), App.Vector(1842, 584, 0)), False)
sketch3.addGeometry(Part.LineSegment(App.Vector(1842, 584, 0), App.Vector(1842, 902, 0)), False)
sketch3.addGeometry(Part.LineSegment(App.Vector(1842, 902, 0), App.Vector(0, 902, 0)), False)
sketch3.addGeometry(Part.LineSegment(App.Vector(3988, 2730, 0), App.Vector(3988, 2134, 0)), False)
sketch3.addGeometry(Part.LineSegment(App.Vector(3988, 2134, 0), App.Vector(4623, 2134, 0)), False)
sketch3.addGeometry(Part.LineSegment(App.Vector(4623, 2134, 0), App.Vector(4623, 2730, 0)), False)
sketch3.addGeometry(Part.LineSegment(App.Vector(4623, 2730, 0), App.Vector(3988, 2730, 0)), False)
sketch3.addGeometry(Part.LineSegment(App.Vector(5652, 3353, 0), App.Vector(4762, 3353, 0)), False)
sketch3.addGeometry(Part.LineSegment(App.Vector(4762, 3353, 0), App.Vector(4762, 2705, 0)), False)
sketch3.addGeometry(Part.LineSegment(App.Vector(4762, 2705, 0), App.Vector(5652, 2705, 0)), False)
sketch3.addGeometry(Part.LineSegment(App.Vector(5652, 2705, 0), App.Vector(5652, 3353, 0)), False)
sketch3.addConstraint(Sketcher.Constraint("Coincident", 0, 2, 1, 1))
sketch3.addConstraint(Sketcher.Constraint("Coincident", 1, 2, 2, 1))
sketch3.addConstraint(Sketcher.Constraint("Coincident", 2, 2, 3, 1))
sketch3.addConstraint(Sketcher.Constraint("Coincident", 3, 2, 0, 1))
sketch3.addConstraint(Sketcher.Constraint("Coincident", 4, 2, 5, 1))
sketch3.addConstraint(Sketcher.Constraint("Coincident", 5, 2, 6, 1))
sketch3.addConstraint(Sketcher.Constraint("Coincident", 6, 2, 7, 1))
sketch3.addConstraint(Sketcher.Constraint("Coincident", 7, 2, 4, 1))
sketch3.addConstraint(Sketcher.Constraint("Coincident", 8, 2, 9, 1))
sketch3.addConstraint(Sketcher.Constraint("Coincident", 9, 2, 10, 1))
sketch3.addConstraint(Sketcher.Constraint("Coincident", 10, 2, 11, 1))
sketch3.addConstraint(Sketcher.Constraint("Coincident", 11, 2, 8, 1))
sketch3.addConstraint(Sketcher.Constraint("Coincident", 12, 2, 13, 1))
sketch3.addConstraint(Sketcher.Constraint("Coincident", 13, 2, 14, 1))
sketch3.addConstraint(Sketcher.Constraint("Coincident", 14, 2, 15, 1))
sketch3.addConstraint(Sketcher.Constraint("Coincident", 15, 2, 12, 1))
sketch3.addConstraint(Sketcher.Constraint("Coincident", 16, 2, 17, 1))
sketch3.addConstraint(Sketcher.Constraint("Coincident", 17, 2, 18, 1))
sketch3.addConstraint(Sketcher.Constraint("Coincident", 18, 2, 19, 1))
sketch3.addConstraint(Sketcher.Constraint("Coincident", 19, 2, 16, 1))
sketch3.addConstraint(Sketcher.Constraint("Coincident", 20, 2, 21, 1))
sketch3.addConstraint(Sketcher.Constraint("Coincident", 21, 2, 22, 1))
sketch3.addConstraint(Sketcher.Constraint("Coincident", 22, 2, 23, 1))
sketch3.addConstraint(Sketcher.Constraint("Coincident", 23, 2, 20, 1))
sketch3.addConstraint(Sketcher.Constraint("Vertical", 0))
sketch3.addConstraint(Sketcher.Constraint("Horizontal", 1))
sketch3.addConstraint(Sketcher.Constraint("Vertical", 2))
sketch3.addConstraint(Sketcher.Constraint("Horizontal", 3))
sketch3.addConstraint(Sketcher.Constraint("Vertical", 4))
sketch3.addConstraint(Sketcher.Constraint("Horizontal", 5))
sketch3.addConstraint(Sketcher.Constraint("Vertical", 6))
sketch3.addConstraint(Sketcher.Constraint("Horizontal", 7))
sketch3.addConstraint(Sketcher.Constraint("Vertical", 8))
sketch3.addConstraint(Sketcher.Constraint("Horizontal", 9))
sketch3.addConstraint(Sketcher.Constraint("Vertical", 10))
sketch3.addConstraint(Sketcher.Constraint("Horizontal", 11))
sketch3.addConstraint(Sketcher.Constraint("Vertical", 12))
sketch3.addConstraint(Sketcher.Constraint("Horizontal", 13))
sketch3.addConstraint(Sketcher.Constraint("Vertical", 14))
sketch3.addConstraint(Sketcher.Constraint("Horizontal", 15))
sketch3.addConstraint(Sketcher.Constraint("Vertical", 16))
sketch3.addConstraint(Sketcher.Constraint("Horizontal", 17))
sketch3.addConstraint(Sketcher.Constraint("Vertical", 18))
sketch3.addConstraint(Sketcher.Constraint("Horizontal", 19))
sketch3.addConstraint(Sketcher.Constraint("Horizontal", 20))
sketch3.addConstraint(Sketcher.Constraint("Vertical", 21))
sketch3.addConstraint(Sketcher.Constraint("Horizontal", 22))
sketch3.addConstraint(Sketcher.Constraint("Vertical", 23))
sketch3.addConstraint(Sketcher.Constraint("PointOnObject", 12, 2, -2))
sketch3.addConstraint(Sketcher.Constraint("Horizontal", 5, 2, 8, 2))
sketch3.addConstraint(Sketcher.Constraint("Horizontal", 7, 2, 10, 2))
sketch3.addConstraint(Sketcher.Constraint("Horizontal", 9, 2, 16, 2))
sketch3.addConstraint(Sketcher.Constraint("Horizontal", 3, 2, 20, 2))
sketch3.addConstraint(Sketcher.Constraint("DistanceX", 17, 1, 17, 2, Q("25 in")))
sketch3.addConstraint(Sketcher.Constraint("DistanceX", 20, 2, 20, 1, Q("35 in")))
sketch3.addConstraint(Sketcher.Constraint("DistanceY", 4, 2, 4, 1, Q("11 in")))
sketch3.addConstraint(Sketcher.Constraint("DistanceX", 1, 1, 1, 2, Q("32.5 in")))
sketch3.addConstraint(Sketcher.Constraint("DistanceX", 5, 1, 5, 2, Q("30.5 in")))
sketch3.addConstraint(Sketcher.Constraint("DistanceX", 9, 1, 9, 2, Q("10.5 in")))
sketch3.addConstraint(Sketcher.Constraint("DistanceX", 13, 1, 13, 2, Q("72.5 in")))
sketch3.addConstraint(Sketcher.Constraint("DistanceY", 0, 2, 0, 1, Q("18.5 in")))
sketch3.addConstraint(Sketcher.Constraint("DistanceY", 12, 2, 12, 1, Q("12.5 in")))
sketch3.addConstraint(Sketcher.Constraint("DistanceY", 16, 2, 16, 1, Q("23.5 in")))
sketch3.addConstraint(Sketcher.Constraint("DistanceY", 21, 2, 21, 1, Q("25.5 in")))
sketch3.addConstraint(Sketcher.Constraint("DistanceX", -1, 1, 1, 2, Q("81 in")))
sketch3.addConstraint(Sketcher.Constraint("DistanceY", -1, 1, 2, 2, Q("132 in")))
sketch3.addConstraint(Sketcher.Constraint("DistanceY", -1, 1, 4, 2, Q("84 in")))
sketch3.addConstraint(Sketcher.Constraint("DistanceX", -1, 1, 5, 2, Q("61 in")))
sketch3.addConstraint(Sketcher.Constraint("DistanceX", -1, 1, 9, 2, Q("96 in")))
sketch3.addConstraint(Sketcher.Constraint("DistanceY", -1, 1, 12, 2, Q("23 in")))
sketch3.addConstraint(Sketcher.Constraint("DistanceX", -1, 1, 16, 2, Q("157 in")))
sketch3.addConstraint(Sketcher.Constraint("DistanceX", -1, 1, 20, 2, Q("187.5 in")))
sketch3.setExpression("Constraints[53]", "Params.sketch3_width")
sketch3.setExpression("Constraints[54]", "Params.sketch3_width2")
sketch3.setExpression("Constraints[55]", "Params.sketch3_height")
sketch3.setExpression("Constraints[56]", "Params.sketch3_width3")
sketch3.setExpression("Constraints[57]", "Params.sketch3_width4")
pad3 = doc.addObject("PartDesign::Pad", "Pad002")
body3.addObject(pad3)
pad3.Profile = sketch3
pad3.setExpression("Length", "Params.pad3_length")
body4 = doc.addObject("PartDesign::Body", "Body003")

# Sketch on XY plane
sketch4 = doc.addObject("Sketcher::SketchObject", "Sketch003")
body4.addObject(sketch4)
sketch4.AttachmentSupport = (doc.getObject("XY_Plane003"), [""])
sketch4.MapMode = "FlatFace"
sketch4.addGeometry(Part.LineSegment(App.Vector(1232, 2413, 0), App.Vector(2057, 2413, 0)), False)
sketch4.addGeometry(Part.LineSegment(App.Vector(2057, 2413, 0), App.Vector(2057, 2883, 0)), False)
sketch4.addGeometry(Part.LineSegment(App.Vector(2057, 2883, 0), App.Vector(1232, 2883, 0)), False)
sketch4.addGeometry(Part.LineSegment(App.Vector(1232, 2883, 0), App.Vector(1232, 2413, 0)), False)
sketch4.addConstraint(Sketcher.Constraint("Coincident", 0, 2, 1, 1))
sketch4.addConstraint(Sketcher.Constraint("Coincident", 1, 2, 2, 1))
sketch4.addConstraint(Sketcher.Constraint("Coincident", 2, 2, 3, 1))
sketch4.addConstraint(Sketcher.Constraint("Coincident", 3, 2, 0, 1))
sketch4.addConstraint(Sketcher.Constraint("Horizontal", 0))
sketch4.addConstraint(Sketcher.Constraint("Vertical", 1))
sketch4.addConstraint(Sketcher.Constraint("Horizontal", 2))
sketch4.addConstraint(Sketcher.Constraint("Vertical", 3))
sketch4.addConstraint(Sketcher.Constraint("DistanceX", 0, 1, 0, 2, Q("32.5 in")))
sketch4.addConstraint(Sketcher.Constraint("DistanceY", 1, 1, 1, 2, Q("18.5 in")))
sketch4.addConstraint(Sketcher.Constraint("DistanceX", -1, 1, 0, 2, Q("81 in")))
sketch4.addConstraint(Sketcher.Constraint("DistanceY", -1, 1, 0, 2, Q("95 in")))
sketch4.setExpression("Constraints[8]", "Params.sketch4_width")
sketch4.setExpression("Constraints[9]", "Params.sketch4_height")
pad4 = doc.addObject("PartDesign::Pad", "Pad003")
body4.addObject(pad4)
pad4.Profile = sketch4
pad4.setExpression("Length", "Params.pad4_length")

doc.recompute()
